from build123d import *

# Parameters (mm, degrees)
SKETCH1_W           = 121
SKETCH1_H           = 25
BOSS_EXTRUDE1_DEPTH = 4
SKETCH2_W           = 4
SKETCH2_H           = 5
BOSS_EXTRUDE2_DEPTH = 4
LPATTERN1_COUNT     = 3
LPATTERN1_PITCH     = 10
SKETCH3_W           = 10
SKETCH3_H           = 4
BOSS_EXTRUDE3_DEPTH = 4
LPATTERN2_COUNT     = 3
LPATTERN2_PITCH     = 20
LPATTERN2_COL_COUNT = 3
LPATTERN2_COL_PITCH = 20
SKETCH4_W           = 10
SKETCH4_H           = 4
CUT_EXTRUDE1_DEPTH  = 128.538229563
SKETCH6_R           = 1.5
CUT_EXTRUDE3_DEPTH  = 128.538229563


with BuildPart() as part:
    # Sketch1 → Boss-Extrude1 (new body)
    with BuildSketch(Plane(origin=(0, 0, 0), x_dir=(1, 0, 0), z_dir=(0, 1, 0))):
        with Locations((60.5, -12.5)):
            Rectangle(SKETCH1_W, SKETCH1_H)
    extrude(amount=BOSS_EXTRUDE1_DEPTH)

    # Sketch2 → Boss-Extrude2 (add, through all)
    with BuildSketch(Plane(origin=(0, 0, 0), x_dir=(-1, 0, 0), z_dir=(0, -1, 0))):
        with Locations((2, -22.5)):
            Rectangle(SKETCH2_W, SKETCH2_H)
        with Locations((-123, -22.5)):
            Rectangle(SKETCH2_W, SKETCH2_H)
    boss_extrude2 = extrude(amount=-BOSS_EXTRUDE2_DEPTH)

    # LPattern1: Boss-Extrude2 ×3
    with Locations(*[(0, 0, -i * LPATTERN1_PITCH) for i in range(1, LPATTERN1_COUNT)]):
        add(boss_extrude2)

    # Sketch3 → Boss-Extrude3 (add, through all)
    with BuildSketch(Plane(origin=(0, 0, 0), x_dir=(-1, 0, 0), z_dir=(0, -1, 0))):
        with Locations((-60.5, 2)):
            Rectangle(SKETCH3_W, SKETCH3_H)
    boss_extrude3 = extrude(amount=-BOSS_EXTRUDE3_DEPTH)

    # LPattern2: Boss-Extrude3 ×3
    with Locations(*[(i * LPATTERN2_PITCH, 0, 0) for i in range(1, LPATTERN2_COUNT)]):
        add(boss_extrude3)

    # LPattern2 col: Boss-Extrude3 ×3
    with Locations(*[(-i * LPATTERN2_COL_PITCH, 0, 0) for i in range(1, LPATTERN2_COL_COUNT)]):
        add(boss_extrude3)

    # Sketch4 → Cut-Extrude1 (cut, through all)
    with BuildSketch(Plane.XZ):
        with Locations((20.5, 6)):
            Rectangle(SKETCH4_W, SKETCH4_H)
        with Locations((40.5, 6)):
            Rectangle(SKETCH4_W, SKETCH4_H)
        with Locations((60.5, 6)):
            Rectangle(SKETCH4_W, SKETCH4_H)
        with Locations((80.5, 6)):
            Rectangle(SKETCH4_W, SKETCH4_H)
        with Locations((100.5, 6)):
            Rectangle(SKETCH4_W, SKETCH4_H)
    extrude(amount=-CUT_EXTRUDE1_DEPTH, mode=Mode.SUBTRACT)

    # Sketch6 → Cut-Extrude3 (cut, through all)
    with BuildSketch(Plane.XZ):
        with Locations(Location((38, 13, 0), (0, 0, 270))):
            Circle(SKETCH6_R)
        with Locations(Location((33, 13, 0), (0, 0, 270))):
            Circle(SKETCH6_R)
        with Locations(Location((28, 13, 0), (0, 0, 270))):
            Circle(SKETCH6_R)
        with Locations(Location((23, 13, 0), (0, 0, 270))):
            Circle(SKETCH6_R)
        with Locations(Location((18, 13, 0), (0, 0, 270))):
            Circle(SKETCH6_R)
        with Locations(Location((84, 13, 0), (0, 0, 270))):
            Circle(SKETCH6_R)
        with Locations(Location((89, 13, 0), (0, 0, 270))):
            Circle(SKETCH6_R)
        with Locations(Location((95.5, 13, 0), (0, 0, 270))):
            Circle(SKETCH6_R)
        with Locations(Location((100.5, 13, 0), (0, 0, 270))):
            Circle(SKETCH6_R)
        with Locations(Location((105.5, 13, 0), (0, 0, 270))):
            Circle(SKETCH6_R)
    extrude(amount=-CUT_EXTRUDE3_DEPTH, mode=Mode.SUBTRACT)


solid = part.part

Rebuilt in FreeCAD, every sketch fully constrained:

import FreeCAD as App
import Part
import Sketcher

V = App.Vector


def add_polygon(sketch, points):
    """Adds a closed chain of lines whose ends are joined by coincident constraints."""
    first, n = sketch.GeometryCount, len(points)
    for a, b in zip(points, points[1:] + points[:1]):
        sketch.addGeometry(Part.LineSegment(App.Vector(*a, 0), App.Vector(*b, 0)), False)
    for i in range(n):
        sketch.addConstraint(Sketcher.Constraint("Coincident", first + i, 2, first + (i + 1) % n, 1))

doc = App.newDocument("Part")
body = doc.addObject("PartDesign::Body", "Body")

# Sketch on XZ plane
sketch1 = body.newObject("Sketcher::SketchObject", "Sketch")
sketch1.AttachmentSupport = (doc.getObject("XZ_Plane"), [""])
sketch1.MapMode = "FlatFace"
add_polygon(sketch1, [(0, 0), (0, 25), (121, 25), (121, 0)])  # lines 0-3
sketch1.addConstraint(Sketcher.Constraint("Vertical", 0))
sketch1.addConstraint(Sketcher.Constraint("Horizontal", 1))
sketch1.addConstraint(Sketcher.Constraint("Vertical", 2))
sketch1.addConstraint(Sketcher.Constraint("Horizontal", 3))
sketch1.addConstraint(Sketcher.Constraint("Coincident", 3, 2, -1, 1))
sketch1.addConstraint(Sketcher.Constraint("DistanceX", 1, 1, 1, 2, 121.0))
sketch1.addConstraint(Sketcher.Constraint("DistanceY", 0, 1, 0, 2, 25.0))
pad1 = body.newObject("PartDesign::Pad", "Pad")
pad1.Profile = sketch1
pad1.Length = 4
pad1.Reversed = True

# Sketch on XZ plane
sketch2 = body.newObject("Sketcher::SketchObject", "Sketch001")
sketch2.AttachmentSupport = (doc.getObject("XZ_Plane"), [""])
sketch2.MapMode = "FlatFace"
add_polygon(sketch2, [(0, 20), (0, 25), (-4, 25), (-4, 20)])  # lines 0-3
add_polygon(sketch2, [(125, 20), (125, 25), (121, 25), (121, 20)])  # lines 4-7
sketch2.addConstraint(Sketcher.Constraint("Vertical", 0))
sketch2.addConstraint(Sketcher.Constraint("Horizontal", 1))
sketch2.addConstraint(Sketcher.Constraint("Vertical", 2))
sketch2.addConstraint(Sketcher.Constraint("Horizontal", 3))
sketch2.addConstraint(Sketcher.Constraint("Vertical", 4))
sketch2.addConstraint(Sketcher.Constraint("Horizontal", 5))
sketch2.addConstraint(Sketcher.Constraint("Vertical", 6))
sketch2.addConstraint(Sketcher.Constraint("Horizontal", 7))
sketch2.addConstraint(Sketcher.Constraint("PointOnObject", 0, 2, -2))
sketch2.addConstraint(Sketcher.Constraint("Horizontal", 1, 2, 4, 2))
sketch2.addConstraint(Sketcher.Constraint("Horizontal", 3, 2, 6, 2))
sketch2.addConstraint(Sketcher.Constraint("Equal", 3, 5))
sketch2.addConstraint(Sketcher.Constraint("DistanceX", 1, 2, 1, 1, 4.0))
sketch2.addConstraint(Sketcher.Constraint("DistanceY", 0, 1, 0, 2, 5.0))
sketch2.addConstraint(Sketcher.Constraint("DistanceY", -1, 1, 0, 2, 25.0))
sketch2.addConstraint(Sketcher.Constraint("DistanceX", -1, 1, 4, 2, 125.0))
pad2 = body.newObject("PartDesign::Pad", "Pad001")
pad2.Profile = sketch2
pad2.Length = 4
pad2.Reversed = True
doc.recompute()

linearpattern = body.newObject("PartDesign::LinearPattern", "LinearPattern")
linearpattern.Originals = [pad2]
linearpattern.Direction = (doc.getObject("Z_Axis"), [""])
linearpattern.Mode = "offset"
linearpattern.Offset = 10
linearpattern.Occurrences = 3
linearpattern.Reversed = True
body.Tip = linearpattern

# Sketch on XZ plane
sketch3 = body.newObject("Sketcher::SketchObject", "Sketch002")
sketch3.AttachmentSupport = (doc.getObject("XZ_Plane"), [""])
sketch3.MapMode = "FlatFace"
add_polygon(sketch3, [(65.5, -4), (65.5, 0), (55.5, 0), (55.5, -4)])  # lines 0-3
sketch3.addConstraint(Sketcher.Constraint("Vertical", 0))
sketch3.addConstraint(Sketcher.Constraint("Horizontal", 1))
sketch3.addConstraint(Sketcher.Constraint("Vertical", 2))
sketch3.addConstraint(Sketcher.Constraint("Horizontal", 3))
sketch3.addConstraint(Sketcher.Constraint("PointOnObject", 0, 2, -1))
sketch3.addConstraint(Sketcher.Constraint("DistanceX", 1, 2, 1, 1, 10.0))
sketch3.addConstraint(Sketcher.Constraint("DistanceY", 0, 1, 0, 2, 4.0))
sketch3.addConstraint(Sketcher.Constraint("DistanceX", -1, 1, 0, 2, 65.5))
pad3 = body.newObject("PartDesign::Pad", "Pad002")
pad3.Profile = sketch3
pad3.Length = 4
pad3.Reversed = True
doc.recompute()

linearpattern2 = body.newObject("PartDesign::LinearPattern", "LinearPattern001")
linearpattern2.Originals = [pad3]
linearpattern2.Direction = (doc.getObject("X_Axis"), [""])
linearpattern2.Mode = "offset"
linearpattern2.Offset = 20
linearpattern2.Occurrences = 3
body.Tip = linearpattern2
doc.recompute()

linearpattern3 = body.newObject("PartDesign::LinearPattern", "LinearPattern002")
linearpattern3.Originals = [pad3]
linearpattern3.Direction = (doc.getObject("X_Axis"), [""])
linearpattern3.Mode = "offset"
linearpattern3.Offset = 20
linearpattern3.Occurrences = 3
linearpattern3.Reversed = True
body.Tip = linearpattern3

# Sketch on XZ plane
sketch4 = body.newObject("Sketcher::SketchObject", "Sketch003")
sketch4.AttachmentSupport = (doc.getObject("XZ_Plane"), [""])
sketch4.MapMode = "FlatFace"
add_polygon(sketch4, [(15.5, 8), (15.5, 4), (25.5, 4), (25.5, 8)])  # lines 0-3
add_polygon(sketch4, [(35.5, 8), (35.5, 4), (45.5, 4), (45.5, 8)])  # lines 4-7
add_polygon(sketch4, [(55.5, 8), (55.5, 4), (65.5, 4), (65.5, 8)])  # lines 8-11
add_polygon(sketch4, [(75.5, 8), (75.5, 4), (85.5, 4), (85.5, 8)])  # lines 12-15
add_polygon(sketch4, [(95.5, 8), (95.5, 4), (105.5, 4), (105.5, 8)])  # lines 16-19
sketch4.addConstraint(Sketcher.Constraint("Vertical", 0))
sketch4.addConstraint(Sketcher.Constraint("Horizontal", 1))
sketch4.addConstraint(Sketcher.Constraint("Vertical", 2))
sketch4.addConstraint(Sketcher.Constraint("Horizontal", 3))
sketch4.addConstraint(Sketcher.Constraint("Vertical", 4))
sketch4.addConstraint(Sketcher.Constraint("Horizontal", 5))
sketch4.addConstraint(Sketcher.Constraint("Vertical", 6))
sketch4.addConstraint(Sketcher.Constraint("Horizontal", 7))
sketch4.addConstraint(Sketcher.Constraint("Vertical", 8))
sketch4.addConstraint(Sketcher.Constraint("Horizontal", 9))
sketch4.addConstraint(Sketcher.Constraint("Vertical", 10))
sketch4.addConstraint(Sketcher.Constraint("Horizontal", 11))
sketch4.addConstraint(Sketcher.Constraint("Vertical", 12))
sketch4.addConstraint(Sketcher.Constraint("Horizontal", 13))
sketch4.addConstraint(Sketcher.Constraint("Vertical", 14))
sketch4.addConstraint(Sketcher.Constraint("Horizontal", 15))
sketch4.addConstraint(Sketcher.Constraint("Vertical", 16))
sketch4.addConstraint(Sketcher.Constraint("Horizontal", 17))
sketch4.addConstraint(Sketcher.Constraint("Vertical", 18))
sketch4.addConstraint(Sketcher.Constraint("Horizontal", 19))
sketch4.addConstraint(Sketcher.Constraint("Horizontal", 1, 2, 4, 2))
sketch4.addConstraint(Sketcher.Constraint("Horizontal", 3, 2, 6, 2))
sketch4.addConstraint(Sketcher.Constraint("Horizontal", 5, 2, 8, 2))
sketch4.addConstraint(Sketcher.Constraint("Horizontal", 7, 2, 10, 2))
sketch4.addConstraint(Sketcher.Constraint("Horizontal", 9, 2, 12, 2))
sketch4.addConstraint(Sketcher.Constraint("Horizontal", 11, 2, 14, 2))
sketch4.addConstraint(Sketcher.Constraint("Horizontal", 13, 2, 16, 2))
sketch4.addConstraint(Sketcher.Constraint("Horizontal", 15, 2, 18, 2))
sketch4.addConstraint(Sketcher.Constraint("Equal", 3, 5))
sketch4.addConstraint(Sketcher.Constraint("Equal", 7, 9))
sketch4.addConstraint(Sketcher.Constraint("Equal", 11, 13))
sketch4.addConstraint(Sketcher.Constraint("Equal", 15, 17))
sketch4.addConstraint(Sketcher.Constraint("DistanceX", 1, 1, 1, 2, 10.0))
sketch4.addConstraint(Sketcher.Constraint("DistanceY", 0, 2, 0, 1, 4.0))
sketch4.addConstraint(Sketcher.Constraint("DistanceY", -1, 1, 0, 2, 4.0))
sketch4.addConstraint(Sketcher.Constraint("DistanceX", 1, 2, 4, 2, 10.0))
sketch4.addConstraint(Sketcher.Constraint("DistanceX", 5, 2, 8, 2, 10.0))
sketch4.addConstraint(Sketcher.Constraint("DistanceX", 9, 2, 12, 2, 10.0))
sketch4.addConstraint(Sketcher.Constraint("DistanceX", 13, 2, 16, 2, 10.0))
sketch4.addConstraint(Sketcher.Constraint("DistanceX", -1, 1, 0, 2, 15.5))
pocket1 = body.newObject("PartDesign::Pocket", "Pocket")
pocket1.Profile = sketch4
pocket1.Type = "ThroughAll"

# Sketch on XZ plane
sketch5 = body.newObject("Sketcher::SketchObject", "Sketch004")
sketch5.AttachmentSupport = (doc.getObject("XZ_Plane"), [""])
sketch5.MapMode = "FlatFace"
sketch5.addGeometry(Part.Circle(V(38, 13, 0), V(0, 0, 1), 1.5), False)
sketch5.addGeometry(Part.Circle(V(33, 13, 0), V(0, 0, 1), 1.5), False)
sketch5.addGeometry(Part.Circle(V(28, 13, 0), V(0, 0, 1), 1.5), False)
sketch5.addGeometry(Part.Circle(V(23, 13, 0), V(0, 0, 1), 1.5), False)
sketch5.addGeometry(Part.Circle(V(18, 13, 0), V(0, 0, 1), 1.5), False)
sketch5.addGeometry(Part.Circle(V(84, 13, 0), V(0, 0, 1), 1.5), False)
sketch5.addGeometry(Part.Circle(V(89, 13, 0), V(0, 0, 1), 1.5), False)
sketch5.addGeometry(Part.Circle(V(95.5, 13, 0), V(0, 0, 1), 1.5), False)
sketch5.addGeometry(Part.Circle(V(100.5, 13, 0), V(0, 0, 1), 1.5), False)
sketch5.addGeometry(Part.Circle(V(105.5, 13, 0), V(0, 0, 1), 1.5), False)
sketch5.addConstraint(Sketcher.Constraint("Equal", 0, 1))
sketch5.addConstraint(Sketcher.Constraint("Equal", 1, 2))
sketch5.addConstraint(Sketcher.Constraint("Equal", 2, 3))
sketch5.addConstraint(Sketcher.Constraint("Equal", 3, 4))
sketch5.addConstraint(Sketcher.Constraint("Equal", 4, 5))
sketch5.addConstraint(Sketcher.Constraint("Equal", 5, 6))
sketch5.addConstraint(Sketcher.Constraint("Equal", 6, 7))
sketch5.addConstraint(Sketcher.Constraint("Equal", 7, 8))
sketch5.addConstraint(Sketcher.Constraint("Equal", 8, 9))
sketch5.addConstraint(Sketcher.Constraint("Horizontal", 0, 3, 1, 3))
sketch5.addConstraint(Sketcher.Constraint("Horizontal", 1, 3, 2, 3))
sketch5.addConstraint(Sketcher.Constraint("Horizontal", 2, 3, 3, 3))
sketch5.addConstraint(Sketcher.Constraint("Horizontal", 3, 3, 4, 3))
sketch5.addConstraint(Sketcher.Constraint("Horizontal", 4, 3, 5, 3))
sketch5.addConstraint(Sketcher.Constraint("Horizontal", 5, 3, 6, 3))
sketch5.addConstraint(Sketcher.Constraint("Horizontal", 6, 3, 7, 3))
sketch5.addConstraint(Sketcher.Constraint("Horizontal", 7, 3, 8, 3))
sketch5.addConstraint(Sketcher.Constraint("Horizontal", 8, 3, 9, 3))
sketch5.addConstraint(Sketcher.Constraint("Diameter", 0, 3.0))
sketch5.addConstraint(Sketcher.Constraint("DistanceX", -1, 1, 0, 3, 38.0))
sketch5.addConstraint(Sketcher.Constraint("DistanceY", -1, 1, 0, 3, 13.0))
sketch5.addConstraint(Sketcher.Constraint("DistanceX", -1, 1, 1, 3, 33.0))
sketch5.addConstraint(Sketcher.Constraint("DistanceX", -1, 1, 2, 3, 28.0))
sketch5.addConstraint(Sketcher.Constraint("DistanceX", -1, 1, 3, 3, 23.0))
sketch5.addConstraint(Sketcher.Constraint("DistanceX", -1, 1, 4, 3, 18.0))
sketch5.addConstraint(Sketcher.Constraint("DistanceX", -1, 1, 5, 3, 84.0))
sketch5.addConstraint(Sketcher.Constraint("DistanceX", -1, 1, 6, 3, 89.0))
sketch5.addConstraint(Sketcher.Constraint("DistanceX", 7, 3, 8, 3, 5.0))
sketch5.addConstraint(Sketcher.Constraint("DistanceX", 8, 3, 9, 3, 5.0))
sketch5.addConstraint(Sketcher.Constraint("DistanceX", -1, 1, 7, 3, 95.5))
pocket2 = body.newObject("PartDesign::Pocket", "Pocket001")
pocket2.Profile = sketch5
pocket2.Type = "ThroughAll"

doc.recompute()
